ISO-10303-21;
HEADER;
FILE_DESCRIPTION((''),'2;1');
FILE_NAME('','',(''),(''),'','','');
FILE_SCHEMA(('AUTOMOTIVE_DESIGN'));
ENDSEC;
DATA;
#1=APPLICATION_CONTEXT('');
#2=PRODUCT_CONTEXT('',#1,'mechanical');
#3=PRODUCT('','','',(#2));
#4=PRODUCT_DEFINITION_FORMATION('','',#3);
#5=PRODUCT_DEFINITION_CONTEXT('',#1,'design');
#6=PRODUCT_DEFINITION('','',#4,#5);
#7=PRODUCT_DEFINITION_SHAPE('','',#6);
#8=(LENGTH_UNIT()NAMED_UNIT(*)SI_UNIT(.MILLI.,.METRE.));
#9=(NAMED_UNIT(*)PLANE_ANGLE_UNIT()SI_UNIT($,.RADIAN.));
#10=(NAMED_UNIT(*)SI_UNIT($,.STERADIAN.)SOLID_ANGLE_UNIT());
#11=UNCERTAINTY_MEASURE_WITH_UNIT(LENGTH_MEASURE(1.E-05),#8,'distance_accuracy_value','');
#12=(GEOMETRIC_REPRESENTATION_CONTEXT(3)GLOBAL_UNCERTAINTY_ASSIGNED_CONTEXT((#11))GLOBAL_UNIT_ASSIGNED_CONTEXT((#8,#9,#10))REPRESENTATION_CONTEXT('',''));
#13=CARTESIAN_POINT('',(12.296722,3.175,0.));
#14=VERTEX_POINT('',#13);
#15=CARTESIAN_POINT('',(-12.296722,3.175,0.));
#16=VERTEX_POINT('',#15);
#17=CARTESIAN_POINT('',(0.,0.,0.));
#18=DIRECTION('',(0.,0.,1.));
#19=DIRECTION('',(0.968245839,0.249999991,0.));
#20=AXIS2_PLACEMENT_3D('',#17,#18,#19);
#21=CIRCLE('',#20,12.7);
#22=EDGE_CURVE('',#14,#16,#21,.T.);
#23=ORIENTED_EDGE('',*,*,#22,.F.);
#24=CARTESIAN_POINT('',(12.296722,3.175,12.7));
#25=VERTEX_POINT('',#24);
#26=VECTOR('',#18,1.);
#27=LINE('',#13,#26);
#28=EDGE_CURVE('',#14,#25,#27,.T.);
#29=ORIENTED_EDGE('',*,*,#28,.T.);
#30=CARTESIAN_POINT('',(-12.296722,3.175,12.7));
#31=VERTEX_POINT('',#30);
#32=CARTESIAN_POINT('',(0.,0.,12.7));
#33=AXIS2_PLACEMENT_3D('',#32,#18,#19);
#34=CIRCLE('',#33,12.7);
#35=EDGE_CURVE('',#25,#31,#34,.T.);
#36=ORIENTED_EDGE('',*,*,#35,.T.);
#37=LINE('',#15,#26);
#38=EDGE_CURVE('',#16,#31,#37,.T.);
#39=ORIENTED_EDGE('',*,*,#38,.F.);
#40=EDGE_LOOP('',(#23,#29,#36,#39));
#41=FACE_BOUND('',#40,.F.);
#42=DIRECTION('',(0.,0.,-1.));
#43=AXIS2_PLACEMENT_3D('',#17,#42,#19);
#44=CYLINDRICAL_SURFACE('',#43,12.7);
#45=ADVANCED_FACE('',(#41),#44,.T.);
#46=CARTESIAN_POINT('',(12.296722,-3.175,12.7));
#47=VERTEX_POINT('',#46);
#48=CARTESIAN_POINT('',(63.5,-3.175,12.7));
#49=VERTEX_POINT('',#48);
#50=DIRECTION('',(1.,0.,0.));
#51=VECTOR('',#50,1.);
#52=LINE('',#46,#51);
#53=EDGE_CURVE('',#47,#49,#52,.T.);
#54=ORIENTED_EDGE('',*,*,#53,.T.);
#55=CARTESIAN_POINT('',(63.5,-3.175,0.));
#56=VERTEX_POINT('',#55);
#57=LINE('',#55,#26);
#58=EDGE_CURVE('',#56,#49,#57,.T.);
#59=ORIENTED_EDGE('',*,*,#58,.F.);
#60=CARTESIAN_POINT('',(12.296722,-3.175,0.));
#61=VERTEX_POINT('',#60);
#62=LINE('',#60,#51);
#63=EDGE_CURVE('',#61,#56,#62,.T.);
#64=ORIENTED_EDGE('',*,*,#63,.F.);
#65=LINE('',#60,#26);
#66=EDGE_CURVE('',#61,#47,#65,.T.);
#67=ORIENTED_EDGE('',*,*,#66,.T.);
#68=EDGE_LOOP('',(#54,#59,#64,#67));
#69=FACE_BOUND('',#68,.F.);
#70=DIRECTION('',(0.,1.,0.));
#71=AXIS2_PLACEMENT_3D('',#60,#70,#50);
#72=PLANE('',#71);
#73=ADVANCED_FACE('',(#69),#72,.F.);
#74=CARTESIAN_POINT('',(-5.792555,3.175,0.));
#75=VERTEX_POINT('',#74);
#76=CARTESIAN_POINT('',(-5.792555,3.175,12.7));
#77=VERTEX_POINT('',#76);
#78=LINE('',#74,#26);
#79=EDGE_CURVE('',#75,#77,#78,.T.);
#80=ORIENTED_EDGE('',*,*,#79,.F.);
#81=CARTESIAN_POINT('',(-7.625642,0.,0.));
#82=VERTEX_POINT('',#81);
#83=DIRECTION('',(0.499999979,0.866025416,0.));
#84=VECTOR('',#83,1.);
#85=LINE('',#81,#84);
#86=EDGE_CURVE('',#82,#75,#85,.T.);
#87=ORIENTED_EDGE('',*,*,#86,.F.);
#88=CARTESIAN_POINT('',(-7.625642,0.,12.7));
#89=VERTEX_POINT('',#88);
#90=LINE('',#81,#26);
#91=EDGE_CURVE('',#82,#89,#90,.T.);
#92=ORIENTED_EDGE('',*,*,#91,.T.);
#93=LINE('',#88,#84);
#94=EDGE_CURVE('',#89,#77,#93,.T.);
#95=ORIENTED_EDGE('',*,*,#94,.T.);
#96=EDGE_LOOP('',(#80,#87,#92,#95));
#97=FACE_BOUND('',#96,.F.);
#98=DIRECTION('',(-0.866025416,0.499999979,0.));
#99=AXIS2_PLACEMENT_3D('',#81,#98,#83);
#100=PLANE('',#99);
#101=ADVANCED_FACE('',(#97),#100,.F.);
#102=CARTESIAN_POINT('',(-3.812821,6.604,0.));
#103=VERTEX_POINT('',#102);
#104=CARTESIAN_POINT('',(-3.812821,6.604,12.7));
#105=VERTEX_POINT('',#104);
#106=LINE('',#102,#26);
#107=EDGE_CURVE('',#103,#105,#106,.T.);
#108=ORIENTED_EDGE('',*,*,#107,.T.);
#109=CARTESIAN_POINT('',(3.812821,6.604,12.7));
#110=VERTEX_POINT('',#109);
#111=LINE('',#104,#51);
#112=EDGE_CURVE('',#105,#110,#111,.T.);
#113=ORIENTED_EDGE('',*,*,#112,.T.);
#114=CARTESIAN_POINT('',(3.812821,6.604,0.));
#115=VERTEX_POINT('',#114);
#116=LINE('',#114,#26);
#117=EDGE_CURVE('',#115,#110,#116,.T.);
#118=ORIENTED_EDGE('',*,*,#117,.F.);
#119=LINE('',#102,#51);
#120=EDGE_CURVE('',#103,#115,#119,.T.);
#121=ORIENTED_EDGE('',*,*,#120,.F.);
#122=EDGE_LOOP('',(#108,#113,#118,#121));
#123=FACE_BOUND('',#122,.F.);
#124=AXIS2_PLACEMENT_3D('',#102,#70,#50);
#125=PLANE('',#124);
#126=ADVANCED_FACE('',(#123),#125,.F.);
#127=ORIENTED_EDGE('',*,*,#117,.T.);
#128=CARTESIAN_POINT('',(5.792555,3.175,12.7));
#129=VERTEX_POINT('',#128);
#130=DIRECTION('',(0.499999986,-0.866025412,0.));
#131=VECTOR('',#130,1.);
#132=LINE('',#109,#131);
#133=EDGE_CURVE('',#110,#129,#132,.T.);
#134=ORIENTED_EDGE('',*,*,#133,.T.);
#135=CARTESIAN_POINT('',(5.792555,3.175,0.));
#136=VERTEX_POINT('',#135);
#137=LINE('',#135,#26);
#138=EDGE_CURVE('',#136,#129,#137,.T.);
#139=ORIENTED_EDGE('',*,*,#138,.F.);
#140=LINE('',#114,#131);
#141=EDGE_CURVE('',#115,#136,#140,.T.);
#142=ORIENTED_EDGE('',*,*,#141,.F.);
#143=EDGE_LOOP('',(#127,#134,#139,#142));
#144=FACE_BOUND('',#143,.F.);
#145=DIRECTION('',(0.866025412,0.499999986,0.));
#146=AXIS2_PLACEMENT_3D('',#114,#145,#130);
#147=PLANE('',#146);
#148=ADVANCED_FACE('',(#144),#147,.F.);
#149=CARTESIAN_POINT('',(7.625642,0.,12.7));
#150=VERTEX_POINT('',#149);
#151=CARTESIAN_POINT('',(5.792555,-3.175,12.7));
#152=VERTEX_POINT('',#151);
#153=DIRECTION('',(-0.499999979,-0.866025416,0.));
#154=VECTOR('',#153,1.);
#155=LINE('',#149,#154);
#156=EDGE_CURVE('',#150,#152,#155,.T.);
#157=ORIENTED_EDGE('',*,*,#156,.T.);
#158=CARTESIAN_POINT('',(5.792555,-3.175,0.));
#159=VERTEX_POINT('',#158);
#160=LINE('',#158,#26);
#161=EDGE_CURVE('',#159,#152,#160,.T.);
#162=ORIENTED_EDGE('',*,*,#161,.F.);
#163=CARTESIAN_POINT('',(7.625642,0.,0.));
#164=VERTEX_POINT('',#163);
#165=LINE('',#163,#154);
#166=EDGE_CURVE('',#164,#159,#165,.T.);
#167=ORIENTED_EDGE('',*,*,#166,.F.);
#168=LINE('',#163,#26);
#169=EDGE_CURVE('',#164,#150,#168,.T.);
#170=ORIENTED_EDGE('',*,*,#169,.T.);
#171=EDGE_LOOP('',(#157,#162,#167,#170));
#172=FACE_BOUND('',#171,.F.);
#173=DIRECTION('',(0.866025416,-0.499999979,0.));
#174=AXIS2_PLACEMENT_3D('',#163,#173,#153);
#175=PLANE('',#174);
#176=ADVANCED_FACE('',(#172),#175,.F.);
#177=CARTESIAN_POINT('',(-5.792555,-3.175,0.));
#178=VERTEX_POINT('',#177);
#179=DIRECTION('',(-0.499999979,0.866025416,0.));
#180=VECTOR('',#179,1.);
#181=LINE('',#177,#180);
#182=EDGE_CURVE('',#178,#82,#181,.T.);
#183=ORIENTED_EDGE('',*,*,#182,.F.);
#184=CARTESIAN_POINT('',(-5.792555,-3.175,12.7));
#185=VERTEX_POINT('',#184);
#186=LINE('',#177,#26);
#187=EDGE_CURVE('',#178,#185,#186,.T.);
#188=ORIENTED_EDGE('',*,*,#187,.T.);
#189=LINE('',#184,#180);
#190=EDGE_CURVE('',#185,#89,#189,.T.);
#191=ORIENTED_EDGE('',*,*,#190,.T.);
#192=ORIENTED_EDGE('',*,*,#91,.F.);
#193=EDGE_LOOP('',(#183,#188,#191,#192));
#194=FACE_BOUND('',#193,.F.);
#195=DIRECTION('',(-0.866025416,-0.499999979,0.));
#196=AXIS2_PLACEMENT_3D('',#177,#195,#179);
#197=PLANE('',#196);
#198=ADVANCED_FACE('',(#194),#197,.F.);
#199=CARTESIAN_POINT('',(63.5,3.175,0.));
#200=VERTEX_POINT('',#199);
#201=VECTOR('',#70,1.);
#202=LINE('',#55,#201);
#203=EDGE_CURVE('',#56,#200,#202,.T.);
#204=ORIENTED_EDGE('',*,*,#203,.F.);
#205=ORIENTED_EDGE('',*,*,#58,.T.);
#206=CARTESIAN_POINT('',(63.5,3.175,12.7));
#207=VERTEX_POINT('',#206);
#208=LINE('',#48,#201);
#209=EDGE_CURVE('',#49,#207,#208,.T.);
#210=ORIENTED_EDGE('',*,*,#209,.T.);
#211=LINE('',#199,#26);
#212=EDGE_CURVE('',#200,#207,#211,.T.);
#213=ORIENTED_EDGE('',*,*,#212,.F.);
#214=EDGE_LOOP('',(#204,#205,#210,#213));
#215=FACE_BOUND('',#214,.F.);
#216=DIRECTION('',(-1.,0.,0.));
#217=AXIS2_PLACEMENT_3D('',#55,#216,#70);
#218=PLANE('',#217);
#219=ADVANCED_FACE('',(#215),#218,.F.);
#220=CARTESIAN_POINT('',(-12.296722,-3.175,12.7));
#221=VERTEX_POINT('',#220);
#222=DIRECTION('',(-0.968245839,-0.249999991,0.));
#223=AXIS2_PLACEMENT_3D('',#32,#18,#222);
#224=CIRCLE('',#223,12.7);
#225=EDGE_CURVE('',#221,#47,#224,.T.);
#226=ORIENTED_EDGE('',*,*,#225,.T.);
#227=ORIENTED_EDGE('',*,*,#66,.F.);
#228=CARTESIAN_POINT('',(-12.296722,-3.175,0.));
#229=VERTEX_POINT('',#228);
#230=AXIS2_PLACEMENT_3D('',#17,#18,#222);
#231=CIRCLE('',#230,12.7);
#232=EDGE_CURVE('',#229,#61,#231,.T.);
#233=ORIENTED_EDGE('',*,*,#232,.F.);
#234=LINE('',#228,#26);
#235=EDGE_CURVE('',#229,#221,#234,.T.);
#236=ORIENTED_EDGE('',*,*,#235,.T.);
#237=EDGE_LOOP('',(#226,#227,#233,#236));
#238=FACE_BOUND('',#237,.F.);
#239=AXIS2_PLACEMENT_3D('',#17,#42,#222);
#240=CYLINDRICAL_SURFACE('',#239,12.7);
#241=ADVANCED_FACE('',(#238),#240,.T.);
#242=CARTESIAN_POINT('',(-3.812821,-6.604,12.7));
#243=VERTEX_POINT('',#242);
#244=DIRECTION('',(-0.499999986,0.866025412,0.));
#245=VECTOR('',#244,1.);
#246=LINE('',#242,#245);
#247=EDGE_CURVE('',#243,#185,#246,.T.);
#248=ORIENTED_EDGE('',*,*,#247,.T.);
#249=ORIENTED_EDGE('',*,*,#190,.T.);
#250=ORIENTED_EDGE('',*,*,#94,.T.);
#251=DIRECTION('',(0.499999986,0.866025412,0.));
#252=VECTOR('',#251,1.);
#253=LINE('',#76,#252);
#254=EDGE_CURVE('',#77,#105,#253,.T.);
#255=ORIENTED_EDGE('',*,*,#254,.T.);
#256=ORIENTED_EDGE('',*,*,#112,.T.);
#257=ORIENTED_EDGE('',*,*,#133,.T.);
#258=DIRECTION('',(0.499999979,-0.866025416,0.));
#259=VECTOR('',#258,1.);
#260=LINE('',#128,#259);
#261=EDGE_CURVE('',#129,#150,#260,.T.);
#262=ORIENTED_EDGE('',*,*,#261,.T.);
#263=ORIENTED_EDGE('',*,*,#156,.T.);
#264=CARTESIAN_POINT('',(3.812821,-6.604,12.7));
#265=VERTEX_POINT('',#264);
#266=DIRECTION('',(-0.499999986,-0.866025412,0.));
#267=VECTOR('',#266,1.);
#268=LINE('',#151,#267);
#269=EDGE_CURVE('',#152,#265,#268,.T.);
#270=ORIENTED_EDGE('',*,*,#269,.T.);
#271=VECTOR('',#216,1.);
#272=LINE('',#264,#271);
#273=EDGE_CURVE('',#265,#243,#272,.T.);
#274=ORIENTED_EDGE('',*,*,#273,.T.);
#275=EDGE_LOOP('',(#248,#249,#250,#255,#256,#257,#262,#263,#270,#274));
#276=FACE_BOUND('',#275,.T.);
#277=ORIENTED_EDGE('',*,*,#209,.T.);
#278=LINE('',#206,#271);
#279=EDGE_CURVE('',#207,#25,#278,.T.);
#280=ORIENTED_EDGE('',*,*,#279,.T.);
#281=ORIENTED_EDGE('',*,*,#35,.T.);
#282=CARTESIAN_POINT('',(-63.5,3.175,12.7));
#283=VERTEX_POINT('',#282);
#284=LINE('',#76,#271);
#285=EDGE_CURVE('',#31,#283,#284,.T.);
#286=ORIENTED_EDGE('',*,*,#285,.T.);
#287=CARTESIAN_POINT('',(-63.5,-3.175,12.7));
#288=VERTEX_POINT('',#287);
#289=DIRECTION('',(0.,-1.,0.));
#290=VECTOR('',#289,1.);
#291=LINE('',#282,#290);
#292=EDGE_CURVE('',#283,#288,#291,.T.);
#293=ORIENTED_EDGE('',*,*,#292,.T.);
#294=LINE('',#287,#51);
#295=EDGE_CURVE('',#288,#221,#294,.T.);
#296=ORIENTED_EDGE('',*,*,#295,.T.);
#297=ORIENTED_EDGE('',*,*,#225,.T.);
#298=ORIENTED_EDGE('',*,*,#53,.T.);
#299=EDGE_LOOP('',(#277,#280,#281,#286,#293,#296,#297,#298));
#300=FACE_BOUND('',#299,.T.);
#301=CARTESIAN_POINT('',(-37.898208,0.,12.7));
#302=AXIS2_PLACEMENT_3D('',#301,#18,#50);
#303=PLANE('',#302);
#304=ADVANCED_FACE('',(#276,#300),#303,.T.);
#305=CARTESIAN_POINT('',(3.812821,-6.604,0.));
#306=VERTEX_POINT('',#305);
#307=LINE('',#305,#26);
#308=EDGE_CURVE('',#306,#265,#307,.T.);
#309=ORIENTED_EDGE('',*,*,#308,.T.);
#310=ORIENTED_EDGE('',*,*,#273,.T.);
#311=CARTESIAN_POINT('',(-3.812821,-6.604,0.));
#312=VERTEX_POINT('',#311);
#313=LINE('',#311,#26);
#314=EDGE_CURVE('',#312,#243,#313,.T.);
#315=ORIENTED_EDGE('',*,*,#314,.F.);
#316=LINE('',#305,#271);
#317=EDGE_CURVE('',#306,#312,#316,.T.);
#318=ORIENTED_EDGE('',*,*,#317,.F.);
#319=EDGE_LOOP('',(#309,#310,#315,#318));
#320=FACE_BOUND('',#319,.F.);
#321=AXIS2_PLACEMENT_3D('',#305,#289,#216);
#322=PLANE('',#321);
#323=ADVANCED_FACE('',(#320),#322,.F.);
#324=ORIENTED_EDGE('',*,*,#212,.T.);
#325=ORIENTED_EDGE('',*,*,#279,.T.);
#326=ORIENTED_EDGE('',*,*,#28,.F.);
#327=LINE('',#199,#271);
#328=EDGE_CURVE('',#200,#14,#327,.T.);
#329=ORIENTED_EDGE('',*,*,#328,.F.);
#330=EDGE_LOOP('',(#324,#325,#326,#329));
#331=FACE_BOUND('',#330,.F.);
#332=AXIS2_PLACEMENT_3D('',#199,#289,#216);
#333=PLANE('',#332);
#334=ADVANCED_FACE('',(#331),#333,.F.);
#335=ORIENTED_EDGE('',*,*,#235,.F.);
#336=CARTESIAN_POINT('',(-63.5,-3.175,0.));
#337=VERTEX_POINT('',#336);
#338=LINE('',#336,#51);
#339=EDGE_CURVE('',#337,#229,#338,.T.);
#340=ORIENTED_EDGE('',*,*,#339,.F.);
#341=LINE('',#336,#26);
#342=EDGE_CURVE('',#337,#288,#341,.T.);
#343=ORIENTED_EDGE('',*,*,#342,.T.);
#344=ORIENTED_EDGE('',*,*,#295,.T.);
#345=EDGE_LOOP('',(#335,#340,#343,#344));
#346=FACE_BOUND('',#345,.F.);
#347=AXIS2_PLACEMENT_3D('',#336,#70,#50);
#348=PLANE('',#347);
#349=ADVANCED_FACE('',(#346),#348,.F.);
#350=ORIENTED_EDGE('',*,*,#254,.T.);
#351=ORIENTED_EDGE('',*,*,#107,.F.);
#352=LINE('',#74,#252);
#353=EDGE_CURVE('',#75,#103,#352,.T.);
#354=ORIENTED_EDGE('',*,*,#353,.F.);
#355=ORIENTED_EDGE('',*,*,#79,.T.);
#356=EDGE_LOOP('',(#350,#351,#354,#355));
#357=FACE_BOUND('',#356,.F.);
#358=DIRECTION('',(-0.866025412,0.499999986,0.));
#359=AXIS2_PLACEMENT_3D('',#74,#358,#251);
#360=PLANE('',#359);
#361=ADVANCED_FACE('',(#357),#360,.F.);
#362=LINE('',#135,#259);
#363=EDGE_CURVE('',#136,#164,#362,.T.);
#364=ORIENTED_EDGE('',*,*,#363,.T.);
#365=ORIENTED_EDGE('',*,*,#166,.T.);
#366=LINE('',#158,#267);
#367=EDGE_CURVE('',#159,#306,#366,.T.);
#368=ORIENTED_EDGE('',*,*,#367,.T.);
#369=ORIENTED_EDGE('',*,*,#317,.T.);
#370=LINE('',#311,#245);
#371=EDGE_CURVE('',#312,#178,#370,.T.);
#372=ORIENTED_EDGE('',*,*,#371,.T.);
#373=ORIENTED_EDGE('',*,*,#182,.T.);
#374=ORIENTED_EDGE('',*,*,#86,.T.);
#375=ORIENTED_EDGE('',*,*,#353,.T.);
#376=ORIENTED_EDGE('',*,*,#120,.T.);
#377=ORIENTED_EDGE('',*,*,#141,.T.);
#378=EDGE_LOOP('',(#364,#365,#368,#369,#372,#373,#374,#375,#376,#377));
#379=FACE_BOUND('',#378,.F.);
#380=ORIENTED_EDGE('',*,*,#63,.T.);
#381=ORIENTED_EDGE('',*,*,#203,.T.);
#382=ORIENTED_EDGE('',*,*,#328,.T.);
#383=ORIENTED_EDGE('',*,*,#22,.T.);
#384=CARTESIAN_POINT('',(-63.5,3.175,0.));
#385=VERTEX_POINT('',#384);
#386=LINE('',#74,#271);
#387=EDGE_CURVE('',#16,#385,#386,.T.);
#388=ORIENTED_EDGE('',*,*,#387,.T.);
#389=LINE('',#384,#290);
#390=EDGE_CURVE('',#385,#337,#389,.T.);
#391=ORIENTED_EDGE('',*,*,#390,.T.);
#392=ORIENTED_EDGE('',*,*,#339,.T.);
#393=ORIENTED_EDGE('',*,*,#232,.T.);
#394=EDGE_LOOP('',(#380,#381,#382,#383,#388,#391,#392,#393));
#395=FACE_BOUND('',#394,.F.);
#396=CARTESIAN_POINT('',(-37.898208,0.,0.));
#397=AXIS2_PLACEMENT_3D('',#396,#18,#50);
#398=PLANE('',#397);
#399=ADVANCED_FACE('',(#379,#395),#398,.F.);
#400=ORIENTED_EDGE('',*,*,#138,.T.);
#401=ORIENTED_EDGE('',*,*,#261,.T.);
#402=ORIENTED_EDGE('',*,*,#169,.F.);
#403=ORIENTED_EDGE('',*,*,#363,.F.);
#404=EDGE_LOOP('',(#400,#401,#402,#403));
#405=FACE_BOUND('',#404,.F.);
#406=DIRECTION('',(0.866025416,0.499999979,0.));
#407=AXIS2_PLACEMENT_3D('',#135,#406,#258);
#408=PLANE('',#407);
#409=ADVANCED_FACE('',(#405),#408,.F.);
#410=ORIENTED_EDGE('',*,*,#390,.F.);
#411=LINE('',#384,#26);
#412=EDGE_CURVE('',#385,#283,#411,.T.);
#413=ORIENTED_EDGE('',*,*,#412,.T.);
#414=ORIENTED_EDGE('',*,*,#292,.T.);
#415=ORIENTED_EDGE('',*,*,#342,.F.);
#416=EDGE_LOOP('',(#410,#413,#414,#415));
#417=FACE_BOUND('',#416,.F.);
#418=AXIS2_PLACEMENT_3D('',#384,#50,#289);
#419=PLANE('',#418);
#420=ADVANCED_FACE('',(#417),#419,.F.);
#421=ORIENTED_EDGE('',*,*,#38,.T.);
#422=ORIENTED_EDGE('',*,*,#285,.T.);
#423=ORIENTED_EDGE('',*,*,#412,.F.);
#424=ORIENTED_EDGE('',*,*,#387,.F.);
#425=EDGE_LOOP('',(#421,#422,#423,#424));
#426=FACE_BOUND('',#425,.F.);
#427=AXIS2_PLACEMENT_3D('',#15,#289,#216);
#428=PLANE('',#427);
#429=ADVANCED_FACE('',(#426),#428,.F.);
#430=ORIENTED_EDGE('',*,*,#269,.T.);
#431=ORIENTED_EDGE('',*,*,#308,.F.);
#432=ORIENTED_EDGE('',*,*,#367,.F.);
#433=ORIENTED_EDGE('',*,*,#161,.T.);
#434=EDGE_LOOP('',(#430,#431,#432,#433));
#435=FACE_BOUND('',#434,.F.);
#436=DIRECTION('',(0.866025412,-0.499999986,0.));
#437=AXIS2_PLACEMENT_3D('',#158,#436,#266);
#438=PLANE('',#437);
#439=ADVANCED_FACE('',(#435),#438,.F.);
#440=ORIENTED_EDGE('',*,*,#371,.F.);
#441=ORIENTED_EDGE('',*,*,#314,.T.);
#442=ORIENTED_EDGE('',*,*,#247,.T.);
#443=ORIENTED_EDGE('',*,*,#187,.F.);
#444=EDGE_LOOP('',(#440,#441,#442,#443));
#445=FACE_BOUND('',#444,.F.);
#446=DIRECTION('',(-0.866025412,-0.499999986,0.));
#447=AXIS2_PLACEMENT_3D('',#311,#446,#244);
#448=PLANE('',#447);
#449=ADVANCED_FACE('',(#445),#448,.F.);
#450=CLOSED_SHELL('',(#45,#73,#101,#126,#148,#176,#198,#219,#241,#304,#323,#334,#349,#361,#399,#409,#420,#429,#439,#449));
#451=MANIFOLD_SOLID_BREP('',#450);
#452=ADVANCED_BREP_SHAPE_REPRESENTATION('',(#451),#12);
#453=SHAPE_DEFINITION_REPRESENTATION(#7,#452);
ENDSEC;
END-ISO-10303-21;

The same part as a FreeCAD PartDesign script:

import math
import FreeCAD as App
import Part
import Sketcher
from FreeCAD import Vector
Q = App.Units.Quantity


def add_polygon(sketch, points):
    """Adds a closed chain of lines whose ends are joined by coincident constraints."""
    first, n = sketch.GeometryCount, len(points)
    for a, b in zip(points, points[1:] + points[:1]):
        sketch.addGeometry(Part.LineSegment(App.Vector(*a, 0), App.Vector(*b, 0)), False)
    for i in range(n):
        sketch.addConstraint(Sketcher.Constraint("Coincident", first + i, 2, first + (i + 1) % n, 1))

doc = App.newDocument("Part")
body = doc.addObject("PartDesign::Body", "Body")

# Sketch on XY plane
sketch1 = doc.addObject("Sketcher::SketchObject", "Sketch")
body.addObject(sketch1)
sketch1.AttachmentSupport = (doc.XY_Plane, [""])
sketch1.MapMode = "FlatFace"
sketch1.addGeometry(Part.LineSegment(Vector(-63.5, 3.175, 0), Vector(-63.5, -3.175, 0)), False)  # 0
sketch1.addGeometry(Part.LineSegment(Vector(-63.5, -3.175, 0), Vector(-12.296722, -3.175, 0)), False)  # 1
sketch1.addGeometry(Part.ArcOfCircle(Part.Circle(Vector(0, 0, 0), Vector(0, 0, 1), 12.7), math.radians(-165.522488), math.radians(-14.477512)), False)  # 2
sketch1.addGeometry(Part.LineSegment(Vector(12.296722, -3.175, 0), Vector(63.5, -3.175, 0)), False)  # 3
sketch1.addGeometry(Part.LineSegment(Vector(63.5, -3.175, 0), Vector(63.5, 3.175, 0)), False)  # 4
sketch1.addGeometry(Part.LineSegment(Vector(63.5, 3.175, 0), Vector(12.296722, 3.175, 0)), False)  # 5
sketch1.addGeometry(Part.ArcOfCircle(Part.Circle(Vector(0, 0, 0), Vector(0, 0, 1), 12.7), math.radians(14.477512), math.radians(165.522488)), False)  # 6
sketch1.addGeometry(Part.LineSegment(Vector(-12.296722, 3.175, 0), Vector(-63.5, 3.175, 0)), False)  # 7
add_polygon(sketch1, [(-5.792555, -3.175), (-7.625642, 0), (-5.792555, 3.175), (-3.812821, 6.604), (3.812821, 6.604), (5.792555, 3.175), (7.625642, 0), (5.792555, -3.175), (3.812821, -6.604), (-3.812821, -6.604)])  # lines 8-17
sketch1.addConstraint([
    Sketcher.Constraint("Coincident", 0, 2, 1, 1),
    Sketcher.Constraint("Coincident", 1, 2, 2, 1),
    Sketcher.Constraint("Coincident", 2, 2, 3, 1),
    Sketcher.Constraint("Coincident", 3, 2, 4, 1),
    Sketcher.Constraint("Coincident", 4, 2, 5, 1),
    Sketcher.Constraint("Coincident", 5, 2, 6, 1),
    Sketcher.Constraint("Coincident", 6, 2, 7, 1),
    Sketcher.Constraint("Coincident", 7, 2, 0, 1),
    Sketcher.Constraint("Vertical", 0),
    Sketcher.Constraint("Horizontal", 1),
    Sketcher.Constraint("Horizontal", 3),
    Sketcher.Constraint("Vertical", 4),
    Sketcher.Constraint("Horizontal", 5),
    Sketcher.Constraint("Horizontal", 7),
    Sketcher.Constraint("Horizontal", 11),
    Sketcher.Constraint("Horizontal", 16),
    Sketcher.Constraint("Coincident", 2, 3, -1, 1),
    Sketcher.Constraint("Coincident", 6, 3, -1, 1),
    Sketcher.Constraint("Equal", 2, 6),
    Sketcher.Constraint("Symmetric", 0, 2, 4, 2, -1, 1),
    Sketcher.Constraint("Symmetric", 8, 2, 13, 2, -1, 1),
    Sketcher.Constraint("Symmetric", 9, 2, 14, 2, -1, 1),
    Sketcher.Constraint("Symmetric", 10, 2, 15, 2, -1, 1),
    Sketcher.Constraint("Symmetric", 12, 2, 17, 2, -1, 1),
    Sketcher.Constraint("Symmetric", 9, 2, 12, 2, -2),
    Sketcher.Constraint("PointOnObject", 8, 2, -1),
    Sketcher.Constraint("Parallel", 9, 10),
    Sketcher.Constraint("Parallel", 8, 12),
    Sketcher.Constraint("Parallel", 13, 17),
    Sketcher.Constraint("Horizontal", 1, 2, 2, 2),
    Sketcher.Constraint("Horizontal", 5, 2, 6, 2),
    Sketcher.Constraint("Horizontal", 7, 2, 9, 2),
    Sketcher.Constraint("Radius", 2, Q("0.5 in")),
    Sketcher.Constraint("Angle", 8, Q("119.999999 deg")),
    Sketcher.Constraint("DistanceX", 0, 2, 3, 2, Q("5 in")),
    Sketcher.Constraint("DistanceY", 0, 2, 0, 1, Q("0.25 in")),
    Sketcher.Constraint("DistanceY", -1, 1, 10, 2, Q("0.26 in")),
    Sketcher.Constraint("DistanceX", 6, 2, 10, 2, 8.483901),
])
pad1 = doc.addObject("PartDesign::Pad", "Pad")
body.addObject(pad1)
pad1.Profile = sketch1
pad1.Length = Q("0.5 in")

doc.recompute()
